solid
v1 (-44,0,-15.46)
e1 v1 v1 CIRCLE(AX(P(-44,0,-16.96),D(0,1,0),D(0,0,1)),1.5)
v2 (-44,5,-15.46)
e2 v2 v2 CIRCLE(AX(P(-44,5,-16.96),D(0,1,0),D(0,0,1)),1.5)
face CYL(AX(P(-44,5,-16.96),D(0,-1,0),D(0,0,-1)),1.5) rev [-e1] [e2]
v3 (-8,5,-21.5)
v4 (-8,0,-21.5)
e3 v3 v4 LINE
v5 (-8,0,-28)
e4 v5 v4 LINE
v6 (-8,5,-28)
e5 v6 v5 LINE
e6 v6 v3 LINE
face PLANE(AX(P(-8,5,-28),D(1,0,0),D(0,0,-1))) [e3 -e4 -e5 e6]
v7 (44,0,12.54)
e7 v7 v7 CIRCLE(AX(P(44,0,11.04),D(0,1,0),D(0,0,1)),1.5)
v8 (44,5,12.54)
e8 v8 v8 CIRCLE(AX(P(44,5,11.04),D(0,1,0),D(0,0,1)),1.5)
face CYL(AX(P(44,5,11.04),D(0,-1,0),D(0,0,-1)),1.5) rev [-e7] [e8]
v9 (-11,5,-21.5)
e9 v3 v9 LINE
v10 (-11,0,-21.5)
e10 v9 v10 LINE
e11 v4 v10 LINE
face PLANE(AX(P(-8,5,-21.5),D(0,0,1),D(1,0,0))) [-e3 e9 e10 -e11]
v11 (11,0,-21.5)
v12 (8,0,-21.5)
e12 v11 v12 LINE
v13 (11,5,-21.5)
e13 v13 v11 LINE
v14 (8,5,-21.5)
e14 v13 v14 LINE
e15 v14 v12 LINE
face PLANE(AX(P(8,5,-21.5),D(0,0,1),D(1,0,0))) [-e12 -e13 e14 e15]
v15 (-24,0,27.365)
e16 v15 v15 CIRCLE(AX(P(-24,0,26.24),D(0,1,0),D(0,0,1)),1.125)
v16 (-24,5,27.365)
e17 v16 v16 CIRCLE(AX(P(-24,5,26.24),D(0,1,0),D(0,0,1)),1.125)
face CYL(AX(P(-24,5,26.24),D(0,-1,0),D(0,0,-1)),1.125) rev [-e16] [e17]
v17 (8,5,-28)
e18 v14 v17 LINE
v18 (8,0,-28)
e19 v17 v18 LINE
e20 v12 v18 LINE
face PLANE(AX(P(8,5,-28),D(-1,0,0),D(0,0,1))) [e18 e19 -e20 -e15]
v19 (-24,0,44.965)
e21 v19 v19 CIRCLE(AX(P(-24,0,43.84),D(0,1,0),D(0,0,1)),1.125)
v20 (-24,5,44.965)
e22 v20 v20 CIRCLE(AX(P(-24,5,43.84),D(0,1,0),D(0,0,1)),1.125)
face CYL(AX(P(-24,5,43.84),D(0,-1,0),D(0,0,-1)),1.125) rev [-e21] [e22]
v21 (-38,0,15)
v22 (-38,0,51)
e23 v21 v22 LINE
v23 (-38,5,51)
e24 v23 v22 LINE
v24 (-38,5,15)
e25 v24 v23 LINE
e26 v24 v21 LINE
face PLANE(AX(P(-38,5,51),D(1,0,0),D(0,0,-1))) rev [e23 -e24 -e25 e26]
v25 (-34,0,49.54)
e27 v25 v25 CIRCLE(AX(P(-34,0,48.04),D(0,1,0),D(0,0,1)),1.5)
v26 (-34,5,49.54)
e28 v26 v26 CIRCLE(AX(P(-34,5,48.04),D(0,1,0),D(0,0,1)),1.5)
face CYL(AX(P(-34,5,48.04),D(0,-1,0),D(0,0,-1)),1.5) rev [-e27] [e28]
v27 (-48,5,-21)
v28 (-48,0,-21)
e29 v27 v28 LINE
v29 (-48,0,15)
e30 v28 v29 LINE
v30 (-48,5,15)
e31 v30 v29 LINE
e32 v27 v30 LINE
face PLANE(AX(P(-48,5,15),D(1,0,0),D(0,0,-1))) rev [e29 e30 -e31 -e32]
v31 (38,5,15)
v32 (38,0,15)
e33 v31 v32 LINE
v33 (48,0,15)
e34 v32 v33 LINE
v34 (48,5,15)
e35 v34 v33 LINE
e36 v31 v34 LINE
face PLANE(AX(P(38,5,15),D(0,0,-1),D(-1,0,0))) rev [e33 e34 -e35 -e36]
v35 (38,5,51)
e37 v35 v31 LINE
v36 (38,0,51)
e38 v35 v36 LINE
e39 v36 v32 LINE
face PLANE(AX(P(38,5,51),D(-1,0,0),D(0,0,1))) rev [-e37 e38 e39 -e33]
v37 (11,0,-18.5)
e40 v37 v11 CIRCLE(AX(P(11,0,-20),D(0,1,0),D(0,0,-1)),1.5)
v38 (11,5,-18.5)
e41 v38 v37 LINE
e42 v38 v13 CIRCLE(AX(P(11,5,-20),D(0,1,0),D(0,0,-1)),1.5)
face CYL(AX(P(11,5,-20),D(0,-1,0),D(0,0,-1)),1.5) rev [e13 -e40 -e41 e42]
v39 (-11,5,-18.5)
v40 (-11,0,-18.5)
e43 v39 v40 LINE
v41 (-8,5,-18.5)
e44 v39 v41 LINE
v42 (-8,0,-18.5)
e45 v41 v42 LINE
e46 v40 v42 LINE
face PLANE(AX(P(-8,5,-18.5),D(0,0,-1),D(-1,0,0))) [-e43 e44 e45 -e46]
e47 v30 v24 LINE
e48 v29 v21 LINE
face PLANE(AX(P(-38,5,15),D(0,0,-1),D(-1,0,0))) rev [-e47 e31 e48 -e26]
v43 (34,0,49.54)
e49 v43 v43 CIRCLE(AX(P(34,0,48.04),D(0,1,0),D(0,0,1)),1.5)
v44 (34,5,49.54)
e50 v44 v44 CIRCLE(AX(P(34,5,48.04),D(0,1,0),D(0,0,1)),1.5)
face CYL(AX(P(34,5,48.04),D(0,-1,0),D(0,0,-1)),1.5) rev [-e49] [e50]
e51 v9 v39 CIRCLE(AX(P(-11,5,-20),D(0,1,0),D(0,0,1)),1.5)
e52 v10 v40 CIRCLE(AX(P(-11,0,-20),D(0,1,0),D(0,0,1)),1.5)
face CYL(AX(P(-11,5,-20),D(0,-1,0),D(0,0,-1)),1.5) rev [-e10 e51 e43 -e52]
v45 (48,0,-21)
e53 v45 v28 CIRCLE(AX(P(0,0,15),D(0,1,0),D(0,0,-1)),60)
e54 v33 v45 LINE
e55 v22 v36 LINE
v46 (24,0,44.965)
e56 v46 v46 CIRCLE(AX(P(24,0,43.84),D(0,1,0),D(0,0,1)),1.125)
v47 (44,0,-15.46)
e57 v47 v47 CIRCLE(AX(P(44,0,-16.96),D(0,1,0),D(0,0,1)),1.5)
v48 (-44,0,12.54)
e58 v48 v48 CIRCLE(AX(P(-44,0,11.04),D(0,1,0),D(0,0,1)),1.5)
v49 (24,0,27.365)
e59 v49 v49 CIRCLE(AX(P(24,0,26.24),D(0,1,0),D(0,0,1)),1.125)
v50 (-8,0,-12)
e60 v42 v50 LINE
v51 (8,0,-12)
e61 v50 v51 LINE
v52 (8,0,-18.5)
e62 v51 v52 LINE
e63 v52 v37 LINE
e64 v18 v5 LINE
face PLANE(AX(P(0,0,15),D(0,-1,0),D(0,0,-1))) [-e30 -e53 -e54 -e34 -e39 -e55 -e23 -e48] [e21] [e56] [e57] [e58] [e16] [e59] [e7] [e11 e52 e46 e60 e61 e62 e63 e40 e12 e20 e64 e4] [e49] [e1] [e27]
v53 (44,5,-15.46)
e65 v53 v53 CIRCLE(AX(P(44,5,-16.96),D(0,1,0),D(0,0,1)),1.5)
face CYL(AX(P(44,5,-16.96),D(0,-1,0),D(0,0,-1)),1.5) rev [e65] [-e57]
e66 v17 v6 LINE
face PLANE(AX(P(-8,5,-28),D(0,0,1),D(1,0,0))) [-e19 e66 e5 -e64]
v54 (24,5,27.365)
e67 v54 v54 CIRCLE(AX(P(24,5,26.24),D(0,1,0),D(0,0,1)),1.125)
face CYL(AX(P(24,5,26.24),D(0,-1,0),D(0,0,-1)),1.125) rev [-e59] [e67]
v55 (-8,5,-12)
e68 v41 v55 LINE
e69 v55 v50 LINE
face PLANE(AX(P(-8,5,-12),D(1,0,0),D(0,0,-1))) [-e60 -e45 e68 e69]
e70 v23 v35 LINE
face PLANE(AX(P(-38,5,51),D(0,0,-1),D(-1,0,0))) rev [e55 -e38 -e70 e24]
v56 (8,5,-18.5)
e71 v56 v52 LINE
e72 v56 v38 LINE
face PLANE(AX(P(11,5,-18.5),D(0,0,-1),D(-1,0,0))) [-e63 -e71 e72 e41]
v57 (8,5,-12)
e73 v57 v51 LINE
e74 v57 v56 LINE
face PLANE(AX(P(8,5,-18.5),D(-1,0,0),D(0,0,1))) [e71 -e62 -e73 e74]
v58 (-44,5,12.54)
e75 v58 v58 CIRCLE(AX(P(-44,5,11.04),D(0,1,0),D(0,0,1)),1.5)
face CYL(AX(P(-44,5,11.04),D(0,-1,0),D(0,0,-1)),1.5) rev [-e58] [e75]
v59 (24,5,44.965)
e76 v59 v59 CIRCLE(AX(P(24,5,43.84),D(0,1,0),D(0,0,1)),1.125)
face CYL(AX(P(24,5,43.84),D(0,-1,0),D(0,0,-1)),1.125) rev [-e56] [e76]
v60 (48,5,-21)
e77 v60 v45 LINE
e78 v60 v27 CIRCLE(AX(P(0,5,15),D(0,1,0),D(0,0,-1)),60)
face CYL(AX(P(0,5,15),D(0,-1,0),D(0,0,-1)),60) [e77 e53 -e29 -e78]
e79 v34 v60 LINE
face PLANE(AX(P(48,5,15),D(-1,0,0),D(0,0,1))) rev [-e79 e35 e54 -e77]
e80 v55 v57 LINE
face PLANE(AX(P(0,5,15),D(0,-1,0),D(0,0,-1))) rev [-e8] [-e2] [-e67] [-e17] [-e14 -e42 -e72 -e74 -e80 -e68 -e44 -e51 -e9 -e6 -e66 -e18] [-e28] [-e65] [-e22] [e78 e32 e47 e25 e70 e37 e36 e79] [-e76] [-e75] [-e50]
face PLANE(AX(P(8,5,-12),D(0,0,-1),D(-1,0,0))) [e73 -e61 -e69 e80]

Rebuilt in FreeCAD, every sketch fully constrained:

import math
import FreeCAD as App
import Part
import Sketcher
from FreeCAD import Vector
Q = App.Units.Quantity

doc = App.newDocument("Part")
params = doc.addObject("Spreadsheet::Sheet", "Params")
for row, (alias, value) in enumerate([
    ("sketch1_diameter", "3 mm"),
    ("sketch1_radius", "60 mm"),
    ("sketch1_diameter2", "2.25 mm"),
    ("sketch1_width", "76 mm"),
    ("sketch1_width2", "10 mm"),
    ("pad1_length", "5 mm"),
], start=1):
    params.set(f"A{row}", alias)
    params.set(f"B{row}", "=" + value)
    params.setAlias(f"B{row}", alias)

body = doc.addObject("PartDesign::Body", "Body")

sketch1 = doc.addObject("Sketcher::SketchObject", "Sketch")
body.addObject(sketch1)
sketch1.AttachmentSupport = (doc.XZ_Plane, [""])
sketch1.MapMode = "FlatFace"
sketch1.addGeometry([
    Part.LineSegment(Vector(-38, 51, 0), Vector(38, 51, 0)),
    Part.LineSegment(Vector(38, 51, 0), Vector(38, 15, 0)),
    Part.LineSegment(Vector(38, 15, 0), Vector(48, 15, 0)),
    Part.LineSegment(Vector(48, 15, 0), Vector(48, -21, 0)),
    Part.ArcOfCircle(Part.Circle(Vector(0, 15, 0), Vector(0, 0, 1), 60), math.radians(-143.130102), math.radians(-36.869898)),
    Part.LineSegment(Vector(-48, -21, 0), Vector(-48, 15, 0)),
    Part.LineSegment(Vector(-48, 15, 0), Vector(-38, 15, 0)),
    Part.LineSegment(Vector(-38, 15, 0), Vector(-38, 51, 0)),
    Part.Circle(Vector(-34, 48.04, 0), Vector(0, 0, 1), 1.5),
    Part.Circle(Vector(-24, 43.84, 0), Vector(0, 0, 1), 1.125),
    Part.Circle(Vector(-24, 26.24, 0), Vector(0, 0, 1), 1.125),
    Part.Circle(Vector(-44, 11.04, 0), Vector(0, 0, 1), 1.5),
    Part.Circle(Vector(34, 48.04, 0), Vector(0, 0, 1), 1.5),
    Part.Circle(Vector(24, 43.84, 0), Vector(0, 0, 1), 1.125),
    Part.Circle(Vector(24, 26.24, 0), Vector(0, 0, 1), 1.125),
    Part.Circle(Vector(44, 11.04, 0), Vector(0, 0, 1), 1.5),
    Part.Circle(Vector(-44, -16.96, 0), Vector(0, 0, 1), 1.5),
    Part.LineSegment(Vector(-8, -21.5, 0), Vector(-8, -28, 0)),
    Part.LineSegment(Vector(-8, -28, 0), Vector(8, -28, 0)),
    Part.LineSegment(Vector(8, -28, 0), Vector(8, -21.5, 0)),
    Part.LineSegment(Vector(8, -21.5, 0), Vector(11, -21.5, 0)),
    Part.ArcOfCircle(Part.Circle(Vector(11, -20, 0), Vector(0, 0, 1), 1.5), math.radians(-90), math.radians(90)),
    Part.LineSegment(Vector(11, -18.5, 0), Vector(8, -18.5, 0)),
    Part.LineSegment(Vector(8, -18.5, 0), Vector(8, -12, 0)),
    Part.LineSegment(Vector(8, -12, 0), Vector(-8, -12, 0)),
    Part.LineSegment(Vector(-8, -12, 0), Vector(-8, -18.5, 0)),
    Part.LineSegment(Vector(-8, -18.5, 0), Vector(-11, -18.5, 0)),
    Part.ArcOfCircle(Part.Circle(Vector(-11, -20, 0), Vector(0, 0, 1), 1.5), math.radians(90), math.radians(270)),
    Part.LineSegment(Vector(-11, -21.5, 0), Vector(-8, -21.5, 0)),
    Part.Circle(Vector(44, -16.96, 0), Vector(0, 0, 1), 1.5),
], False)
sketch1.addConstraint([
    Sketcher.Constraint("Coincident", 0, 2, 1, 1),
    Sketcher.Constraint("Coincident", 1, 2, 2, 1),
    Sketcher.Constraint("Coincident", 2, 2, 3, 1),
    Sketcher.Constraint("Coincident", 3, 2, 4, 2),
    Sketcher.Constraint("Coincident", 4, 1, 5, 1),
    Sketcher.Constraint("Coincident", 5, 2, 6, 1),
    Sketcher.Constraint("Coincident", 6, 2, 7, 1),
    Sketcher.Constraint("Coincident", 7, 2, 0, 1),
    Sketcher.Constraint("Coincident", 17, 2, 18, 1),
    Sketcher.Constraint("Coincident", 18, 2, 19, 1),
    Sketcher.Constraint("Coincident", 19, 2, 20, 1),
    Sketcher.Constraint("Tangent", 20, 2, 21, 1),
    Sketcher.Constraint("Tangent", 21, 2, 22, 1),
    Sketcher.Constraint("Coincident", 22, 2, 23, 1),
    Sketcher.Constraint("Coincident", 23, 2, 24, 1),
    Sketcher.Constraint("Coincident", 24, 2, 25, 1),
    Sketcher.Constraint("Coincident", 25, 2, 26, 1),
    Sketcher.Constraint("Tangent", 26, 2, 27, 1),
    Sketcher.Constraint("Tangent", 27, 2, 28, 1),
    Sketcher.Constraint("Coincident", 28, 2, 17, 1),
    Sketcher.Constraint("Horizontal", 0),
    Sketcher.Constraint("Vertical", 1),
    Sketcher.Constraint("Horizontal", 2),
    Sketcher.Constraint("Vertical", 3),
    Sketcher.Constraint("Vertical", 5),
    Sketcher.Constraint("Horizontal", 6),
    Sketcher.Constraint("Vertical", 7),
    Sketcher.Constraint("Vertical", 17),
    Sketcher.Constraint("Horizontal", 18),
    Sketcher.Constraint("Vertical", 19),
    Sketcher.Constraint("Horizontal", 20),
    Sketcher.Constraint("Horizontal", 22),
    Sketcher.Constraint("Vertical", 23),
    Sketcher.Constraint("Horizontal", 24),
    Sketcher.Constraint("Vertical", 25),
    Sketcher.Constraint("Horizontal", 26),
    Sketcher.Constraint("Horizontal", 28),
    Sketcher.Constraint("Equal", 9, 10),
    Sketcher.Constraint("Equal", 8, 11),
    Sketcher.Constraint("Equal", 11, 12),
    Sketcher.Constraint("Equal", 10, 13),
    Sketcher.Constraint("Equal", 13, 14),
    Sketcher.Constraint("Equal", 12, 15),
    Sketcher.Constraint("Equal", 15, 16),
    Sketcher.Constraint("Equal", 16, 21),
    Sketcher.Constraint("Equal", 21, 27),
    Sketcher.Constraint("Equal", 27, 29),
    Sketcher.Constraint("Symmetric", 8, 3, 12, 3, -2),
    Sketcher.Constraint("Symmetric", 9, 3, 13, 3, -2),
    Sketcher.Constraint("Symmetric", 10, 3, 14, 3, -2),
    Sketcher.Constraint("Symmetric", 11, 3, 15, 3, -2),
    Sketcher.Constraint("Symmetric", 21, 3, 27, 3, -2),
    Sketcher.Constraint("Symmetric", 16, 3, 29, 3, -2),
    Sketcher.Constraint("Symmetric", 3, 2, 4, 1, -2),
    Sketcher.Constraint("Symmetric", 1, 2, 6, 2, -2),
    Sketcher.Constraint("Horizontal", 4, 3, 1, 2),
    Sketcher.Constraint("Vertical", 9, 3, 10, 3),
    Sketcher.Constraint("Vertical", 11, 3, 16, 3),
    Sketcher.Constraint("Vertical", 19, 2, 22, 2),
    Sketcher.Constraint("Vertical", 17, 2, 24, 2),
    Sketcher.Constraint("Equal", 22, 26),
    Sketcher.Constraint("Equal", 1, 3),
    Sketcher.Constraint("Equal", 19, 23),
    Sketcher.Constraint("Diameter", 8, Q("3 mm")),
    Sketcher.Constraint("Radius", 4, Q("60 mm")),
    Sketcher.Constraint("Diameter", 9, Q("2.25 mm")),
    Sketcher.Constraint("DistanceX", 0, 1, 0, 2, Q("76 mm")),
    Sketcher.Constraint("DistanceX", 2, 1, 2, 2, Q("10 mm")),
    Sketcher.Constraint("DistanceX", 18, 1, 18, 2, Q("16 mm")),
    Sketcher.Constraint("DistanceX", 20, 1, 20, 2, Q("3 mm")),
    Sketcher.Constraint("DistanceY", 17, 2, 17, 1, Q("6.5 mm")),
    Sketcher.Constraint("DistanceY", -1, 1, 4, 3, Q("15 mm")),
    Sketcher.Constraint("DistanceX", 8, 3, -1, 1, Q("34 mm")),
    Sketcher.Constraint("DistanceX", 9, 3, -1, 1, Q("24 mm")),
    Sketcher.Constraint("DistanceX", 11, 3, -1, 1, Q("44 mm")),
    Sketcher.Constraint("DistanceY", 21, 3, -1, 1, Q("20 mm")),
    Sketcher.Constraint("DistanceY", 11, 3, 8, 3, Q("37 mm")),
    Sketcher.Constraint("DistanceY", 16, 3, 11, 3, Q("28 mm")),
    Sketcher.Constraint("DistanceY", 9, 3, 8, 3, Q("4.2 mm")),
    Sketcher.Constraint("DistanceY", 10, 3, 9, 3, Q("17.6 mm")),
    Sketcher.Constraint("DistanceY", -1, 1, 8, 3, Q("48.04 mm")),
])
sketch1.setExpression("Constraints[63]", "Params.sketch1_diameter")
sketch1.setExpression("Constraints[64]", "Params.sketch1_radius")
sketch1.setExpression("Constraints[65]", "Params.sketch1_diameter2")
sketch1.setExpression("Constraints[66]", "Params.sketch1_width")
sketch1.setExpression("Constraints[67]", "Params.sketch1_width2")
pad1 = doc.addObject("PartDesign::Pad", "Pad")
body.addObject(pad1)
pad1.Profile = sketch1
pad1.setExpression("Length", "Params.pad1_length")
pad1.Reversed = True

doc.recompute()
